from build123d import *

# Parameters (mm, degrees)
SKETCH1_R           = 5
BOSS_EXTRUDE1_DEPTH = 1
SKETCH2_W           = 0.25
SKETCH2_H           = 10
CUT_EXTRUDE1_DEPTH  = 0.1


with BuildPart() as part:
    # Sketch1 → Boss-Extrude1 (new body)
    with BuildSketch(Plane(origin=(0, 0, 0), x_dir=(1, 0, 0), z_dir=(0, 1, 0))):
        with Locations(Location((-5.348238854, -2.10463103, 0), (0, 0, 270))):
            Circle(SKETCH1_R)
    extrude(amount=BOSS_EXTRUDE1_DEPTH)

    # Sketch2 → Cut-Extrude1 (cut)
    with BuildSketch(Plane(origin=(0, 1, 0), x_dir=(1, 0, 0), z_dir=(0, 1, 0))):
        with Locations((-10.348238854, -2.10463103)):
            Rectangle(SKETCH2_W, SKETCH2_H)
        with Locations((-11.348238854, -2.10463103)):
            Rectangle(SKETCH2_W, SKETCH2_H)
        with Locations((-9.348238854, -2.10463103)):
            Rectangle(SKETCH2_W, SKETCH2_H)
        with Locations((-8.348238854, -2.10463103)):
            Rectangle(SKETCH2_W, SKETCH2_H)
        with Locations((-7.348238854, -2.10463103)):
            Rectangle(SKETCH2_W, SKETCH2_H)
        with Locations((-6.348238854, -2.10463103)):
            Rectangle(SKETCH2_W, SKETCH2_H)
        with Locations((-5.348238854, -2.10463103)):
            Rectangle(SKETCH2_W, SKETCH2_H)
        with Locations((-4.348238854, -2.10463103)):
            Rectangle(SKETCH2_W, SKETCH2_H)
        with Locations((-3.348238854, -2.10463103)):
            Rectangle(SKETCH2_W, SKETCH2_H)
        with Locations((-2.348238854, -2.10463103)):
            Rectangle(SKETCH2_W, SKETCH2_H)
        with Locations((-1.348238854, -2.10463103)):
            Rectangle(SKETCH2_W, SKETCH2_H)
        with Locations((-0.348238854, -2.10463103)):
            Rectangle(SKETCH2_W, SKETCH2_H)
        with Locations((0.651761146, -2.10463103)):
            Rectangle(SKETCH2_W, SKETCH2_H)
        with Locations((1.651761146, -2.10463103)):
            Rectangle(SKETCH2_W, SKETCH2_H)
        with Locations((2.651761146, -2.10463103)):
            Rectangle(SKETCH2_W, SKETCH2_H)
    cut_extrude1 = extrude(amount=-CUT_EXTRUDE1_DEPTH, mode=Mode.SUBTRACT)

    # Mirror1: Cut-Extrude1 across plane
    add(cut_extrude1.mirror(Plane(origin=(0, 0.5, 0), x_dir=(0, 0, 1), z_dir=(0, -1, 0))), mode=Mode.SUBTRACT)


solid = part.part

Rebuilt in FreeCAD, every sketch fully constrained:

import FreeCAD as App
import Part
import Sketcher

V = App.Vector

doc = App.newDocument("Part")
body = doc.addObject("PartDesign::Body", "Body")

# Sketch on XZ plane
sketch1 = doc.addObject("Sketcher::SketchObject", "Sketch")
body.addObject(sketch1)
sketch1.AttachmentSupport = (doc.XZ_Plane, [""])
sketch1.MapMode = "FlatFace"
sketch1.addGeometry(Part.Circle(V(-5, 2, 0), V(0, 0, 1), 5), False)
sketch1.addConstraint([
    Sketcher.Constraint("Diameter", 0, 10.0),
    Sketcher.Constraint("DistanceX", 0, 3, -1, 1, 5.348239),
    Sketcher.Constraint("DistanceY", -1, 1, 0, 3, 2.104631),
])
pad1 = doc.addObject("PartDesign::Pad", "Pad")
body.addObject(pad1)
pad1.Profile = sketch1
pad1.Length = 1
pad1.Reversed = True

# Sketch on XZ plane
sketch2 = doc.addObject("Sketcher::SketchObject", "Sketch001")
body.addObject(sketch2)
sketch2.AttachmentSupport = (doc.XZ_Plane, [""])
sketch2.MapMode = "FlatFace"
sketch2.AttachmentOffset = App.Placement(V(0, 0, -1), App.Rotation())
sketch2.addGeometry([
    Part.LineSegment(V(-10.47, -2.9, 0), V(-10.47, 7.1, 0)),  # 0
    Part.LineSegment(V(-10.47, 7.1, 0), V(-10.22, 7.1, 0)),  # 1
    Part.LineSegment(V(-10.22, 7.1, 0), V(-10.22, -2.9, 0)),  # 2
    Part.LineSegment(V(-10.22, -2.9, 0), V(-10.47, -2.9, 0)),  # 3
    Part.LineSegment(V(-11.47, -2.9, 0), V(-11.47, 7.1, 0)),  # 4
    Part.LineSegment(V(-11.47, 7.1, 0), V(-11.22, 7.1, 0)),  # 5
    Part.LineSegment(V(-11.22, 7.1, 0), V(-11.22, -2.9, 0)),  # 6
    Part.LineSegment(V(-11.22, -2.9, 0), V(-11.47, -2.9, 0)),  # 7
    Part.LineSegment(V(-9.47, -2.9, 0), V(-9.47, 7.1, 0)),  # 8
    Part.LineSegment(V(-9.47, 7.1, 0), V(-9.22, 7.1, 0)),  # 9
    Part.LineSegment(V(-9.22, 7.1, 0), V(-9.22, -2.9, 0)),  # 10
    Part.LineSegment(V(-9.22, -2.9, 0), V(-9.47, -2.9, 0)),  # 11
    Part.LineSegment(V(-8.47, -2.9, 0), V(-8.47, 7.1, 0)),  # 12
    Part.LineSegment(V(-8.47, 7.1, 0), V(-8.22, 7.1, 0)),  # 13
    Part.LineSegment(V(-8.22, 7.1, 0), V(-8.22, -2.9, 0)),  # 14
    Part.LineSegment(V(-8.22, -2.9, 0), V(-8.47, -2.9, 0)),  # 15
    Part.LineSegment(V(-7.47, -2.9, 0), V(-7.47, 7.1, 0)),  # 16
    Part.LineSegment(V(-7.47, 7.1, 0), V(-7.22, 7.1, 0)),  # 17
    Part.LineSegment(V(-7.22, 7.1, 0), V(-7.22, -2.9, 0)),  # 18
    Part.LineSegment(V(-7.22, -2.9, 0), V(-7.47, -2.9, 0)),  # 19
    Part.LineSegment(V(-6.47, -2.9, 0), V(-6.47, 7.1, 0)),  # 20
    Part.LineSegment(V(-6.47, 7.1, 0), V(-6.22, 7.1, 0)),  # 21
    Part.LineSegment(V(-6.22, 7.1, 0), V(-6.22, -2.9, 0)),  # 22
    Part.LineSegment(V(-6.22, -2.9, 0), V(-6.47, -2.9, 0)),  # 23
    Part.LineSegment(V(-5.47, -2.9, 0), V(-5.47, 7.1, 0)),  # 24
    Part.LineSegment(V(-5.47, 7.1, 0), V(-5.22, 7.1, 0)),  # 25
    Part.LineSegment(V(-5.22, 7.1, 0), V(-5.22, -2.9, 0)),  # 26
    Part.LineSegment(V(-5.22, -2.9, 0), V(-5.47, -2.9, 0)),  # 27
    Part.LineSegment(V(-4.47, -2.9, 0), V(-4.47, 7.1, 0)),  # 28
    Part.LineSegment(V(-4.47, 7.1, 0), V(-4.22, 7.1, 0)),  # 29
    Part.LineSegment(V(-4.22, 7.1, 0), V(-4.22, -2.9, 0)),  # 30
    Part.LineSegment(V(-4.22, -2.9, 0), V(-4.47, -2.9, 0)),  # 31
    Part.LineSegment(V(-3.47, -2.9, 0), V(-3.47, 7.1, 0)),  # 32
    Part.LineSegment(V(-3.47, 7.1, 0), V(-3.22, 7.1, 0)),  # 33
    Part.LineSegment(V(-3.22, 7.1, 0), V(-3.22, -2.9, 0)),  # 34
    Part.LineSegment(V(-3.22, -2.9, 0), V(-3.47, -2.9, 0)),  # 35
    Part.LineSegment(V(-2.47, -2.9, 0), V(-2.47, 7.1, 0)),  # 36
    Part.LineSegment(V(-2.47, 7.1, 0), V(-2.22, 7.1, 0)),  # 37
    Part.LineSegment(V(-2.22, 7.1, 0), V(-2.22, -2.9, 0)),  # 38
    Part.LineSegment(V(-2.22, -2.9, 0), V(-2.47, -2.9, 0)),  # 39
    Part.LineSegment(V(-1.47, -2.9, 0), V(-1.47, 7.1, 0)),  # 40
    Part.LineSegment(V(-1.47, 7.1, 0), V(-1.22, 7.1, 0)),  # 41
    Part.LineSegment(V(-1.22, 7.1, 0), V(-1.22, -2.9, 0)),  # 42
    Part.LineSegment(V(-1.22, -2.9, 0), V(-1.47, -2.9, 0)),  # 43
    Part.LineSegment(V(-0.47, -2.9, 0), V(-0.47, 7.1, 0)),  # 44
    Part.LineSegment(V(-0.47, 7.1, 0), V(-0.22, 7.1, 0)),  # 45
    Part.LineSegment(V(-0.22, 7.1, 0), V(-0.22, -2.9, 0)),  # 46
    Part.LineSegment(V(-0.22, -2.9, 0), V(-0.47, -2.9, 0)),  # 47
    Part.LineSegment(V(0.53, -2.9, 0), V(0.53, 7.1, 0)),  # 48
    Part.LineSegment(V(0.53, 7.1, 0), V(0.78, 7.1, 0)),  # 49
    Part.LineSegment(V(0.78, 7.1, 0), V(0.78, -2.9, 0)),  # 50
    Part.LineSegment(V(0.78, -2.9, 0), V(0.53, -2.9, 0)),  # 51
    Part.LineSegment(V(1.53, -2.9, 0), V(1.53, 7.1, 0)),  # 52
    Part.LineSegment(V(1.53, 7.1, 0), V(1.78, 7.1, 0)),  # 53
    Part.LineSegment(V(1.78, 7.1, 0), V(1.78, -2.9, 0)),  # 54
    Part.LineSegment(V(1.78, -2.9, 0), V(1.53, -2.9, 0)),  # 55
    Part.LineSegment(V(2.53, -2.9, 0), V(2.53, 7.1, 0)),  # 56
    Part.LineSegment(V(2.53, 7.1, 0), V(2.78, 7.1, 0)),  # 57
    Part.LineSegment(V(2.78, 7.1, 0), V(2.78, -2.9, 0)),  # 58
    Part.LineSegment(V(2.78, -2.9, 0), V(2.53, -2.9, 0)),  # 59
], False)
sketch2.addConstraint([
    Sketcher.Constraint("Coincident", 0, 2, 1, 1),
    Sketcher.Constraint("Coincident", 1, 2, 2, 1),
    Sketcher.Constraint("Coincident", 2, 2, 3, 1),
    Sketcher.Constraint("Coincident", 3, 2, 0, 1),
    Sketcher.Constraint("Coincident", 4, 2, 5, 1),
    Sketcher.Constraint("Coincident", 5, 2, 6, 1),
    Sketcher.Constraint("Coincident", 6, 2, 7, 1),
    Sketcher.Constraint("Coincident", 7, 2, 4, 1),
    Sketcher.Constraint("Coincident", 8, 2, 9, 1),
    Sketcher.Constraint("Coincident", 9, 2, 10, 1),
    Sketcher.Constraint("Coincident", 10, 2, 11, 1),
    Sketcher.Constraint("Coincident", 11, 2, 8, 1),
    Sketcher.Constraint("Coincident", 12, 2, 13, 1),
    Sketcher.Constraint("Coincident", 13, 2, 14, 1),
    Sketcher.Constraint("Coincident", 14, 2, 15, 1),
    Sketcher.Constraint("Coincident", 15, 2, 12, 1),
    Sketcher.Constraint("Coincident", 16, 2, 17, 1),
    Sketcher.Constraint("Coincident", 17, 2, 18, 1),
    Sketcher.Constraint("Coincident", 18, 2, 19, 1),
    Sketcher.Constraint("Coincident", 19, 2, 16, 1),
    Sketcher.Constraint("Coincident", 20, 2, 21, 1),
    Sketcher.Constraint("Coincident", 21, 2, 22, 1),
    Sketcher.Constraint("Coincident", 22, 2, 23, 1),
    Sketcher.Constraint("Coincident", 23, 2, 20, 1),
    Sketcher.Constraint("Coincident", 24, 2, 25, 1),
    Sketcher.Constraint("Coincident", 25, 2, 26, 1),
    Sketcher.Constraint("Coincident", 26, 2, 27, 1),
    Sketcher.Constraint("Coincident", 27, 2, 24, 1),
    Sketcher.Constraint("Coincident", 28, 2, 29, 1),
    Sketcher.Constraint("Coincident", 29, 2, 30, 1),
    Sketcher.Constraint("Coincident", 30, 2, 31, 1),
    Sketcher.Constraint("Coincident", 31, 2, 28, 1),
    Sketcher.Constraint("Coincident", 32, 2, 33, 1),
    Sketcher.Constraint("Coincident", 33, 2, 34, 1),
    Sketcher.Constraint("Coincident", 34, 2, 35, 1),
    Sketcher.Constraint("Coincident", 35, 2, 32, 1),
    Sketcher.Constraint("Coincident", 36, 2, 37, 1),
    Sketcher.Constraint("Coincident", 37, 2, 38, 1),
    Sketcher.Constraint("Coincident", 38, 2, 39, 1),
    Sketcher.Constraint("Coincident", 39, 2, 36, 1),
    Sketcher.Constraint("Coincident", 40, 2, 41, 1),
    Sketcher.Constraint("Coincident", 41, 2, 42, 1),
    Sketcher.Constraint("Coincident", 42, 2, 43, 1),
    Sketcher.Constraint("Coincident", 43, 2, 40, 1),
    Sketcher.Constraint("Coincident", 44, 2, 45, 1),
    Sketcher.Constraint("Coincident", 45, 2, 46, 1),
    Sketcher.Constraint("Coincident", 46, 2, 47, 1),
    Sketcher.Constraint("Coincident", 47, 2, 44, 1),
    Sketcher.Constraint("Coincident", 48, 2, 49, 1),
    Sketcher.Constraint("Coincident", 49, 2, 50, 1),
    Sketcher.Constraint("Coincident", 50, 2, 51, 1),
    Sketcher.Constraint("Coincident", 51, 2, 48, 1),
    Sketcher.Constraint("Coincident", 52, 2, 53, 1),
    Sketcher.Constraint("Coincident", 53, 2, 54, 1),
    Sketcher.Constraint("Coincident", 54, 2, 55, 1),
    Sketcher.Constraint("Coincident", 55, 2, 52, 1),
    Sketcher.Constraint("Coincident", 56, 2, 57, 1),
    Sketcher.Constraint("Coincident", 57, 2, 58, 1),
    Sketcher.Constraint("Coincident", 58, 2, 59, 1),
    Sketcher.Constraint("Coincident", 59, 2, 56, 1),
    Sketcher.Constraint("Vertical", 0),
    Sketcher.Constraint("Horizontal", 1),
    Sketcher.Constraint("Vertical", 2),
    Sketcher.Constraint("Horizontal", 3),
    Sketcher.Constraint("Vertical", 4),
    Sketcher.Constraint("Horizontal", 5),
    Sketcher.Constraint("Vertical", 6),
    Sketcher.Constraint("Horizontal", 7),
    Sketcher.Constraint("Vertical", 8),
    Sketcher.Constraint("Horizontal", 9),
    Sketcher.Constraint("Vertical", 10),
    Sketcher.Constraint("Horizontal", 11),
    Sketcher.Constraint("Vertical", 12),
    Sketcher.Constraint("Horizontal", 13),
    Sketcher.Constraint("Vertical", 14),
    Sketcher.Constraint("Horizontal", 15),
    Sketcher.Constraint("Vertical", 16),
    Sketcher.Constraint("Horizontal", 17),
    Sketcher.Constraint("Vertical", 18),
    Sketcher.Constraint("Horizontal", 19),
    Sketcher.Constraint("Vertical", 20),
    Sketcher.Constraint("Horizontal", 21),
    Sketcher.Constraint("Vertical", 22),
    Sketcher.Constraint("Horizontal", 23),
    Sketcher.Constraint("Vertical", 24),
    Sketcher.Constraint("Horizontal", 25),
    Sketcher.Constraint("Vertical", 26),
    Sketcher.Constraint("Horizontal", 27),
    Sketcher.Constraint("Vertical", 28),
    Sketcher.Constraint("Horizontal", 29),
    Sketcher.Constraint("Vertical", 30),
    Sketcher.Constraint("Horizontal", 31),
    Sketcher.Constraint("Vertical", 32),
    Sketcher.Constraint("Horizontal", 33),
    Sketcher.Constraint("Vertical", 34),
    Sketcher.Constraint("Horizontal", 35),
    Sketcher.Constraint("Vertical", 36),
    Sketcher.Constraint("Horizontal", 37),
    Sketcher.Constraint("Vertical", 38),
    Sketcher.Constraint("Horizontal", 39),
    Sketcher.Constraint("Vertical", 40),
    Sketcher.Constraint("Horizontal", 41),
    Sketcher.Constraint("Vertical", 42),
    Sketcher.Constraint("Horizontal", 43),
    Sketcher.Constraint("Vertical", 44),
    Sketcher.Constraint("Horizontal", 45),
    Sketcher.Constraint("Vertical", 46),
    Sketcher.Constraint("Horizontal", 47),
    Sketcher.Constraint("Vertical", 48),
    Sketcher.Constraint("Horizontal", 49),
    Sketcher.Constraint("Vertical", 50),
    Sketcher.Constraint("Horizontal", 51),
    Sketcher.Constraint("Vertical", 52),
    Sketcher.Constraint("Horizontal", 53),
    Sketcher.Constraint("Vertical", 54),
    Sketcher.Constraint("Horizontal", 55),
    Sketcher.Constraint("Vertical", 56),
    Sketcher.Constraint("Horizontal", 57),
    Sketcher.Constraint("Vertical", 58),
    Sketcher.Constraint("Horizontal", 59),
    Sketcher.Constraint("Horizontal", 1, 2, 4, 2),
    Sketcher.Constraint("Horizontal", 3, 2, 6, 2),
    Sketcher.Constraint("Horizontal", 5, 2, 8, 2),
    Sketcher.Constraint("Horizontal", 7, 2, 10, 2),
    Sketcher.Constraint("Horizontal", 9, 2, 12, 2),
    Sketcher.Constraint("Horizontal", 11, 2, 14, 2),
    Sketcher.Constraint("Horizontal", 13, 2, 16, 2),
    Sketcher.Constraint("Horizontal", 15, 2, 18, 2),
    Sketcher.Constraint("Horizontal", 17, 2, 20, 2),
    Sketcher.Constraint("Horizontal", 19, 2, 22, 2),
    Sketcher.Constraint("Horizontal", 21, 2, 24, 2),
    Sketcher.Constraint("Horizontal", 23, 2, 26, 2),
    Sketcher.Constraint("Horizontal", 25, 2, 28, 2),
    Sketcher.Constraint("Horizontal", 27, 2, 30, 2),
    Sketcher.Constraint("Horizontal", 29, 2, 32, 2),
    Sketcher.Constraint("Horizontal", 31, 2, 34, 2),
    Sketcher.Constraint("Horizontal", 33, 2, 36, 2),
    Sketcher.Constraint("Horizontal", 35, 2, 38, 2),
    Sketcher.Constraint("Horizontal", 37, 2, 40, 2),
    Sketcher.Constraint("Horizontal", 39, 2, 42, 2),
    Sketcher.Constraint("Horizontal", 41, 2, 44, 2),
    Sketcher.Constraint("Horizontal", 43, 2, 46, 2),
    Sketcher.Constraint("Horizontal", 45, 2, 48, 2),
    Sketcher.Constraint("Horizontal", 47, 2, 50, 2),
    Sketcher.Constraint("Horizontal", 49, 2, 52, 2),
    Sketcher.Constraint("Horizontal", 51, 2, 54, 2),
    Sketcher.Constraint("Horizontal", 53, 2, 56, 2),
    Sketcher.Constraint("Horizontal", 55, 2, 58, 2),
    Sketcher.Constraint("Equal", 3, 5),
    Sketcher.Constraint("Equal", 7, 9),
    Sketcher.Constraint("Equal", 11, 13),
    Sketcher.Constraint("Equal", 15, 17),
    Sketcher.Constraint("Equal", 19, 21),
    Sketcher.Constraint("Equal", 23, 25),
    Sketcher.Constraint("Equal", 27, 29),
    Sketcher.Constraint("Equal", 31, 33),
    Sketcher.Constraint("Equal", 35, 37),
    Sketcher.Constraint("Equal", 39, 41),
    Sketcher.Constraint("Equal", 43, 45),
    Sketcher.Constraint("Equal", 47, 49),
    Sketcher.Constraint("Equal", 51, 53),
    Sketcher.Constraint("Equal", 55, 57),
    Sketcher.Constraint("DistanceY", 0, 1, 0, 2, 10.0),
    Sketcher.Constraint("DistanceX", 4, 2, 0, 2, 1.0),
    Sketcher.Constraint("DistanceX", 0, 2, 8, 2, 1.0),
    Sketcher.Constraint("DistanceX", 8, 2, 12, 2, 1.0),
    Sketcher.Constraint("DistanceX", 12, 2, 16, 2, 1.0),
    Sketcher.Constraint("DistanceX", 16, 2, 20, 2, 1.0),
    Sketcher.Constraint("DistanceX", 20, 2, 24, 2, 1.0),
    Sketcher.Constraint("DistanceX", 24, 2, 28, 2, 1.0),
    Sketcher.Constraint("DistanceX", 28, 2, 32, 2, 1.0),
    Sketcher.Constraint("DistanceX", 32, 2, 36, 2, 1.0),
    Sketcher.Constraint("DistanceX", 36, 2, 40, 2, 1.0),
    Sketcher.Constraint("DistanceX", 40, 2, 44, 2, 1.0),
    Sketcher.Constraint("DistanceX", 44, 2, 48, 2, 1.0),
    Sketcher.Constraint("DistanceX", 48, 2, 52, 2, 1.0),
    Sketcher.Constraint("DistanceX", 52, 2, 56, 2, 1.0),
    Sketcher.Constraint("DistanceX", 1, 1, 1, 2, 0.25),
    Sketcher.Constraint("DistanceX", 0, 2, -1, 1, 10.473239),
    Sketcher.Constraint("DistanceY", -1, 1, 0, 2, 7.104631),
])
pocket1 = doc.addObject("PartDesign::Pocket", "Pocket")
body.addObject(pocket1)
pocket1.Profile = sketch2
pocket1.Length = 0.1
pocket1.Reversed = True
doc.recompute()

datumplane = doc.addObject("PartDesign::Plane", "DatumPlane")
body.addObject(datumplane)
datumplane.AttachmentSupport = (doc.XZ_Plane, [""])
datumplane.MapMode = "FlatFace"
datumplane.AttachmentOffset = App.Placement(V(0, 0, -0.5), App.Rotation())
mirrored = doc.addObject("PartDesign::Mirrored", "Mirrored")
body.addObject(mirrored)
mirrored.Originals = [pocket1]
mirrored.MirrorPlane = (datumplane, [""])
body.Tip = mirrored

doc.recompute()
